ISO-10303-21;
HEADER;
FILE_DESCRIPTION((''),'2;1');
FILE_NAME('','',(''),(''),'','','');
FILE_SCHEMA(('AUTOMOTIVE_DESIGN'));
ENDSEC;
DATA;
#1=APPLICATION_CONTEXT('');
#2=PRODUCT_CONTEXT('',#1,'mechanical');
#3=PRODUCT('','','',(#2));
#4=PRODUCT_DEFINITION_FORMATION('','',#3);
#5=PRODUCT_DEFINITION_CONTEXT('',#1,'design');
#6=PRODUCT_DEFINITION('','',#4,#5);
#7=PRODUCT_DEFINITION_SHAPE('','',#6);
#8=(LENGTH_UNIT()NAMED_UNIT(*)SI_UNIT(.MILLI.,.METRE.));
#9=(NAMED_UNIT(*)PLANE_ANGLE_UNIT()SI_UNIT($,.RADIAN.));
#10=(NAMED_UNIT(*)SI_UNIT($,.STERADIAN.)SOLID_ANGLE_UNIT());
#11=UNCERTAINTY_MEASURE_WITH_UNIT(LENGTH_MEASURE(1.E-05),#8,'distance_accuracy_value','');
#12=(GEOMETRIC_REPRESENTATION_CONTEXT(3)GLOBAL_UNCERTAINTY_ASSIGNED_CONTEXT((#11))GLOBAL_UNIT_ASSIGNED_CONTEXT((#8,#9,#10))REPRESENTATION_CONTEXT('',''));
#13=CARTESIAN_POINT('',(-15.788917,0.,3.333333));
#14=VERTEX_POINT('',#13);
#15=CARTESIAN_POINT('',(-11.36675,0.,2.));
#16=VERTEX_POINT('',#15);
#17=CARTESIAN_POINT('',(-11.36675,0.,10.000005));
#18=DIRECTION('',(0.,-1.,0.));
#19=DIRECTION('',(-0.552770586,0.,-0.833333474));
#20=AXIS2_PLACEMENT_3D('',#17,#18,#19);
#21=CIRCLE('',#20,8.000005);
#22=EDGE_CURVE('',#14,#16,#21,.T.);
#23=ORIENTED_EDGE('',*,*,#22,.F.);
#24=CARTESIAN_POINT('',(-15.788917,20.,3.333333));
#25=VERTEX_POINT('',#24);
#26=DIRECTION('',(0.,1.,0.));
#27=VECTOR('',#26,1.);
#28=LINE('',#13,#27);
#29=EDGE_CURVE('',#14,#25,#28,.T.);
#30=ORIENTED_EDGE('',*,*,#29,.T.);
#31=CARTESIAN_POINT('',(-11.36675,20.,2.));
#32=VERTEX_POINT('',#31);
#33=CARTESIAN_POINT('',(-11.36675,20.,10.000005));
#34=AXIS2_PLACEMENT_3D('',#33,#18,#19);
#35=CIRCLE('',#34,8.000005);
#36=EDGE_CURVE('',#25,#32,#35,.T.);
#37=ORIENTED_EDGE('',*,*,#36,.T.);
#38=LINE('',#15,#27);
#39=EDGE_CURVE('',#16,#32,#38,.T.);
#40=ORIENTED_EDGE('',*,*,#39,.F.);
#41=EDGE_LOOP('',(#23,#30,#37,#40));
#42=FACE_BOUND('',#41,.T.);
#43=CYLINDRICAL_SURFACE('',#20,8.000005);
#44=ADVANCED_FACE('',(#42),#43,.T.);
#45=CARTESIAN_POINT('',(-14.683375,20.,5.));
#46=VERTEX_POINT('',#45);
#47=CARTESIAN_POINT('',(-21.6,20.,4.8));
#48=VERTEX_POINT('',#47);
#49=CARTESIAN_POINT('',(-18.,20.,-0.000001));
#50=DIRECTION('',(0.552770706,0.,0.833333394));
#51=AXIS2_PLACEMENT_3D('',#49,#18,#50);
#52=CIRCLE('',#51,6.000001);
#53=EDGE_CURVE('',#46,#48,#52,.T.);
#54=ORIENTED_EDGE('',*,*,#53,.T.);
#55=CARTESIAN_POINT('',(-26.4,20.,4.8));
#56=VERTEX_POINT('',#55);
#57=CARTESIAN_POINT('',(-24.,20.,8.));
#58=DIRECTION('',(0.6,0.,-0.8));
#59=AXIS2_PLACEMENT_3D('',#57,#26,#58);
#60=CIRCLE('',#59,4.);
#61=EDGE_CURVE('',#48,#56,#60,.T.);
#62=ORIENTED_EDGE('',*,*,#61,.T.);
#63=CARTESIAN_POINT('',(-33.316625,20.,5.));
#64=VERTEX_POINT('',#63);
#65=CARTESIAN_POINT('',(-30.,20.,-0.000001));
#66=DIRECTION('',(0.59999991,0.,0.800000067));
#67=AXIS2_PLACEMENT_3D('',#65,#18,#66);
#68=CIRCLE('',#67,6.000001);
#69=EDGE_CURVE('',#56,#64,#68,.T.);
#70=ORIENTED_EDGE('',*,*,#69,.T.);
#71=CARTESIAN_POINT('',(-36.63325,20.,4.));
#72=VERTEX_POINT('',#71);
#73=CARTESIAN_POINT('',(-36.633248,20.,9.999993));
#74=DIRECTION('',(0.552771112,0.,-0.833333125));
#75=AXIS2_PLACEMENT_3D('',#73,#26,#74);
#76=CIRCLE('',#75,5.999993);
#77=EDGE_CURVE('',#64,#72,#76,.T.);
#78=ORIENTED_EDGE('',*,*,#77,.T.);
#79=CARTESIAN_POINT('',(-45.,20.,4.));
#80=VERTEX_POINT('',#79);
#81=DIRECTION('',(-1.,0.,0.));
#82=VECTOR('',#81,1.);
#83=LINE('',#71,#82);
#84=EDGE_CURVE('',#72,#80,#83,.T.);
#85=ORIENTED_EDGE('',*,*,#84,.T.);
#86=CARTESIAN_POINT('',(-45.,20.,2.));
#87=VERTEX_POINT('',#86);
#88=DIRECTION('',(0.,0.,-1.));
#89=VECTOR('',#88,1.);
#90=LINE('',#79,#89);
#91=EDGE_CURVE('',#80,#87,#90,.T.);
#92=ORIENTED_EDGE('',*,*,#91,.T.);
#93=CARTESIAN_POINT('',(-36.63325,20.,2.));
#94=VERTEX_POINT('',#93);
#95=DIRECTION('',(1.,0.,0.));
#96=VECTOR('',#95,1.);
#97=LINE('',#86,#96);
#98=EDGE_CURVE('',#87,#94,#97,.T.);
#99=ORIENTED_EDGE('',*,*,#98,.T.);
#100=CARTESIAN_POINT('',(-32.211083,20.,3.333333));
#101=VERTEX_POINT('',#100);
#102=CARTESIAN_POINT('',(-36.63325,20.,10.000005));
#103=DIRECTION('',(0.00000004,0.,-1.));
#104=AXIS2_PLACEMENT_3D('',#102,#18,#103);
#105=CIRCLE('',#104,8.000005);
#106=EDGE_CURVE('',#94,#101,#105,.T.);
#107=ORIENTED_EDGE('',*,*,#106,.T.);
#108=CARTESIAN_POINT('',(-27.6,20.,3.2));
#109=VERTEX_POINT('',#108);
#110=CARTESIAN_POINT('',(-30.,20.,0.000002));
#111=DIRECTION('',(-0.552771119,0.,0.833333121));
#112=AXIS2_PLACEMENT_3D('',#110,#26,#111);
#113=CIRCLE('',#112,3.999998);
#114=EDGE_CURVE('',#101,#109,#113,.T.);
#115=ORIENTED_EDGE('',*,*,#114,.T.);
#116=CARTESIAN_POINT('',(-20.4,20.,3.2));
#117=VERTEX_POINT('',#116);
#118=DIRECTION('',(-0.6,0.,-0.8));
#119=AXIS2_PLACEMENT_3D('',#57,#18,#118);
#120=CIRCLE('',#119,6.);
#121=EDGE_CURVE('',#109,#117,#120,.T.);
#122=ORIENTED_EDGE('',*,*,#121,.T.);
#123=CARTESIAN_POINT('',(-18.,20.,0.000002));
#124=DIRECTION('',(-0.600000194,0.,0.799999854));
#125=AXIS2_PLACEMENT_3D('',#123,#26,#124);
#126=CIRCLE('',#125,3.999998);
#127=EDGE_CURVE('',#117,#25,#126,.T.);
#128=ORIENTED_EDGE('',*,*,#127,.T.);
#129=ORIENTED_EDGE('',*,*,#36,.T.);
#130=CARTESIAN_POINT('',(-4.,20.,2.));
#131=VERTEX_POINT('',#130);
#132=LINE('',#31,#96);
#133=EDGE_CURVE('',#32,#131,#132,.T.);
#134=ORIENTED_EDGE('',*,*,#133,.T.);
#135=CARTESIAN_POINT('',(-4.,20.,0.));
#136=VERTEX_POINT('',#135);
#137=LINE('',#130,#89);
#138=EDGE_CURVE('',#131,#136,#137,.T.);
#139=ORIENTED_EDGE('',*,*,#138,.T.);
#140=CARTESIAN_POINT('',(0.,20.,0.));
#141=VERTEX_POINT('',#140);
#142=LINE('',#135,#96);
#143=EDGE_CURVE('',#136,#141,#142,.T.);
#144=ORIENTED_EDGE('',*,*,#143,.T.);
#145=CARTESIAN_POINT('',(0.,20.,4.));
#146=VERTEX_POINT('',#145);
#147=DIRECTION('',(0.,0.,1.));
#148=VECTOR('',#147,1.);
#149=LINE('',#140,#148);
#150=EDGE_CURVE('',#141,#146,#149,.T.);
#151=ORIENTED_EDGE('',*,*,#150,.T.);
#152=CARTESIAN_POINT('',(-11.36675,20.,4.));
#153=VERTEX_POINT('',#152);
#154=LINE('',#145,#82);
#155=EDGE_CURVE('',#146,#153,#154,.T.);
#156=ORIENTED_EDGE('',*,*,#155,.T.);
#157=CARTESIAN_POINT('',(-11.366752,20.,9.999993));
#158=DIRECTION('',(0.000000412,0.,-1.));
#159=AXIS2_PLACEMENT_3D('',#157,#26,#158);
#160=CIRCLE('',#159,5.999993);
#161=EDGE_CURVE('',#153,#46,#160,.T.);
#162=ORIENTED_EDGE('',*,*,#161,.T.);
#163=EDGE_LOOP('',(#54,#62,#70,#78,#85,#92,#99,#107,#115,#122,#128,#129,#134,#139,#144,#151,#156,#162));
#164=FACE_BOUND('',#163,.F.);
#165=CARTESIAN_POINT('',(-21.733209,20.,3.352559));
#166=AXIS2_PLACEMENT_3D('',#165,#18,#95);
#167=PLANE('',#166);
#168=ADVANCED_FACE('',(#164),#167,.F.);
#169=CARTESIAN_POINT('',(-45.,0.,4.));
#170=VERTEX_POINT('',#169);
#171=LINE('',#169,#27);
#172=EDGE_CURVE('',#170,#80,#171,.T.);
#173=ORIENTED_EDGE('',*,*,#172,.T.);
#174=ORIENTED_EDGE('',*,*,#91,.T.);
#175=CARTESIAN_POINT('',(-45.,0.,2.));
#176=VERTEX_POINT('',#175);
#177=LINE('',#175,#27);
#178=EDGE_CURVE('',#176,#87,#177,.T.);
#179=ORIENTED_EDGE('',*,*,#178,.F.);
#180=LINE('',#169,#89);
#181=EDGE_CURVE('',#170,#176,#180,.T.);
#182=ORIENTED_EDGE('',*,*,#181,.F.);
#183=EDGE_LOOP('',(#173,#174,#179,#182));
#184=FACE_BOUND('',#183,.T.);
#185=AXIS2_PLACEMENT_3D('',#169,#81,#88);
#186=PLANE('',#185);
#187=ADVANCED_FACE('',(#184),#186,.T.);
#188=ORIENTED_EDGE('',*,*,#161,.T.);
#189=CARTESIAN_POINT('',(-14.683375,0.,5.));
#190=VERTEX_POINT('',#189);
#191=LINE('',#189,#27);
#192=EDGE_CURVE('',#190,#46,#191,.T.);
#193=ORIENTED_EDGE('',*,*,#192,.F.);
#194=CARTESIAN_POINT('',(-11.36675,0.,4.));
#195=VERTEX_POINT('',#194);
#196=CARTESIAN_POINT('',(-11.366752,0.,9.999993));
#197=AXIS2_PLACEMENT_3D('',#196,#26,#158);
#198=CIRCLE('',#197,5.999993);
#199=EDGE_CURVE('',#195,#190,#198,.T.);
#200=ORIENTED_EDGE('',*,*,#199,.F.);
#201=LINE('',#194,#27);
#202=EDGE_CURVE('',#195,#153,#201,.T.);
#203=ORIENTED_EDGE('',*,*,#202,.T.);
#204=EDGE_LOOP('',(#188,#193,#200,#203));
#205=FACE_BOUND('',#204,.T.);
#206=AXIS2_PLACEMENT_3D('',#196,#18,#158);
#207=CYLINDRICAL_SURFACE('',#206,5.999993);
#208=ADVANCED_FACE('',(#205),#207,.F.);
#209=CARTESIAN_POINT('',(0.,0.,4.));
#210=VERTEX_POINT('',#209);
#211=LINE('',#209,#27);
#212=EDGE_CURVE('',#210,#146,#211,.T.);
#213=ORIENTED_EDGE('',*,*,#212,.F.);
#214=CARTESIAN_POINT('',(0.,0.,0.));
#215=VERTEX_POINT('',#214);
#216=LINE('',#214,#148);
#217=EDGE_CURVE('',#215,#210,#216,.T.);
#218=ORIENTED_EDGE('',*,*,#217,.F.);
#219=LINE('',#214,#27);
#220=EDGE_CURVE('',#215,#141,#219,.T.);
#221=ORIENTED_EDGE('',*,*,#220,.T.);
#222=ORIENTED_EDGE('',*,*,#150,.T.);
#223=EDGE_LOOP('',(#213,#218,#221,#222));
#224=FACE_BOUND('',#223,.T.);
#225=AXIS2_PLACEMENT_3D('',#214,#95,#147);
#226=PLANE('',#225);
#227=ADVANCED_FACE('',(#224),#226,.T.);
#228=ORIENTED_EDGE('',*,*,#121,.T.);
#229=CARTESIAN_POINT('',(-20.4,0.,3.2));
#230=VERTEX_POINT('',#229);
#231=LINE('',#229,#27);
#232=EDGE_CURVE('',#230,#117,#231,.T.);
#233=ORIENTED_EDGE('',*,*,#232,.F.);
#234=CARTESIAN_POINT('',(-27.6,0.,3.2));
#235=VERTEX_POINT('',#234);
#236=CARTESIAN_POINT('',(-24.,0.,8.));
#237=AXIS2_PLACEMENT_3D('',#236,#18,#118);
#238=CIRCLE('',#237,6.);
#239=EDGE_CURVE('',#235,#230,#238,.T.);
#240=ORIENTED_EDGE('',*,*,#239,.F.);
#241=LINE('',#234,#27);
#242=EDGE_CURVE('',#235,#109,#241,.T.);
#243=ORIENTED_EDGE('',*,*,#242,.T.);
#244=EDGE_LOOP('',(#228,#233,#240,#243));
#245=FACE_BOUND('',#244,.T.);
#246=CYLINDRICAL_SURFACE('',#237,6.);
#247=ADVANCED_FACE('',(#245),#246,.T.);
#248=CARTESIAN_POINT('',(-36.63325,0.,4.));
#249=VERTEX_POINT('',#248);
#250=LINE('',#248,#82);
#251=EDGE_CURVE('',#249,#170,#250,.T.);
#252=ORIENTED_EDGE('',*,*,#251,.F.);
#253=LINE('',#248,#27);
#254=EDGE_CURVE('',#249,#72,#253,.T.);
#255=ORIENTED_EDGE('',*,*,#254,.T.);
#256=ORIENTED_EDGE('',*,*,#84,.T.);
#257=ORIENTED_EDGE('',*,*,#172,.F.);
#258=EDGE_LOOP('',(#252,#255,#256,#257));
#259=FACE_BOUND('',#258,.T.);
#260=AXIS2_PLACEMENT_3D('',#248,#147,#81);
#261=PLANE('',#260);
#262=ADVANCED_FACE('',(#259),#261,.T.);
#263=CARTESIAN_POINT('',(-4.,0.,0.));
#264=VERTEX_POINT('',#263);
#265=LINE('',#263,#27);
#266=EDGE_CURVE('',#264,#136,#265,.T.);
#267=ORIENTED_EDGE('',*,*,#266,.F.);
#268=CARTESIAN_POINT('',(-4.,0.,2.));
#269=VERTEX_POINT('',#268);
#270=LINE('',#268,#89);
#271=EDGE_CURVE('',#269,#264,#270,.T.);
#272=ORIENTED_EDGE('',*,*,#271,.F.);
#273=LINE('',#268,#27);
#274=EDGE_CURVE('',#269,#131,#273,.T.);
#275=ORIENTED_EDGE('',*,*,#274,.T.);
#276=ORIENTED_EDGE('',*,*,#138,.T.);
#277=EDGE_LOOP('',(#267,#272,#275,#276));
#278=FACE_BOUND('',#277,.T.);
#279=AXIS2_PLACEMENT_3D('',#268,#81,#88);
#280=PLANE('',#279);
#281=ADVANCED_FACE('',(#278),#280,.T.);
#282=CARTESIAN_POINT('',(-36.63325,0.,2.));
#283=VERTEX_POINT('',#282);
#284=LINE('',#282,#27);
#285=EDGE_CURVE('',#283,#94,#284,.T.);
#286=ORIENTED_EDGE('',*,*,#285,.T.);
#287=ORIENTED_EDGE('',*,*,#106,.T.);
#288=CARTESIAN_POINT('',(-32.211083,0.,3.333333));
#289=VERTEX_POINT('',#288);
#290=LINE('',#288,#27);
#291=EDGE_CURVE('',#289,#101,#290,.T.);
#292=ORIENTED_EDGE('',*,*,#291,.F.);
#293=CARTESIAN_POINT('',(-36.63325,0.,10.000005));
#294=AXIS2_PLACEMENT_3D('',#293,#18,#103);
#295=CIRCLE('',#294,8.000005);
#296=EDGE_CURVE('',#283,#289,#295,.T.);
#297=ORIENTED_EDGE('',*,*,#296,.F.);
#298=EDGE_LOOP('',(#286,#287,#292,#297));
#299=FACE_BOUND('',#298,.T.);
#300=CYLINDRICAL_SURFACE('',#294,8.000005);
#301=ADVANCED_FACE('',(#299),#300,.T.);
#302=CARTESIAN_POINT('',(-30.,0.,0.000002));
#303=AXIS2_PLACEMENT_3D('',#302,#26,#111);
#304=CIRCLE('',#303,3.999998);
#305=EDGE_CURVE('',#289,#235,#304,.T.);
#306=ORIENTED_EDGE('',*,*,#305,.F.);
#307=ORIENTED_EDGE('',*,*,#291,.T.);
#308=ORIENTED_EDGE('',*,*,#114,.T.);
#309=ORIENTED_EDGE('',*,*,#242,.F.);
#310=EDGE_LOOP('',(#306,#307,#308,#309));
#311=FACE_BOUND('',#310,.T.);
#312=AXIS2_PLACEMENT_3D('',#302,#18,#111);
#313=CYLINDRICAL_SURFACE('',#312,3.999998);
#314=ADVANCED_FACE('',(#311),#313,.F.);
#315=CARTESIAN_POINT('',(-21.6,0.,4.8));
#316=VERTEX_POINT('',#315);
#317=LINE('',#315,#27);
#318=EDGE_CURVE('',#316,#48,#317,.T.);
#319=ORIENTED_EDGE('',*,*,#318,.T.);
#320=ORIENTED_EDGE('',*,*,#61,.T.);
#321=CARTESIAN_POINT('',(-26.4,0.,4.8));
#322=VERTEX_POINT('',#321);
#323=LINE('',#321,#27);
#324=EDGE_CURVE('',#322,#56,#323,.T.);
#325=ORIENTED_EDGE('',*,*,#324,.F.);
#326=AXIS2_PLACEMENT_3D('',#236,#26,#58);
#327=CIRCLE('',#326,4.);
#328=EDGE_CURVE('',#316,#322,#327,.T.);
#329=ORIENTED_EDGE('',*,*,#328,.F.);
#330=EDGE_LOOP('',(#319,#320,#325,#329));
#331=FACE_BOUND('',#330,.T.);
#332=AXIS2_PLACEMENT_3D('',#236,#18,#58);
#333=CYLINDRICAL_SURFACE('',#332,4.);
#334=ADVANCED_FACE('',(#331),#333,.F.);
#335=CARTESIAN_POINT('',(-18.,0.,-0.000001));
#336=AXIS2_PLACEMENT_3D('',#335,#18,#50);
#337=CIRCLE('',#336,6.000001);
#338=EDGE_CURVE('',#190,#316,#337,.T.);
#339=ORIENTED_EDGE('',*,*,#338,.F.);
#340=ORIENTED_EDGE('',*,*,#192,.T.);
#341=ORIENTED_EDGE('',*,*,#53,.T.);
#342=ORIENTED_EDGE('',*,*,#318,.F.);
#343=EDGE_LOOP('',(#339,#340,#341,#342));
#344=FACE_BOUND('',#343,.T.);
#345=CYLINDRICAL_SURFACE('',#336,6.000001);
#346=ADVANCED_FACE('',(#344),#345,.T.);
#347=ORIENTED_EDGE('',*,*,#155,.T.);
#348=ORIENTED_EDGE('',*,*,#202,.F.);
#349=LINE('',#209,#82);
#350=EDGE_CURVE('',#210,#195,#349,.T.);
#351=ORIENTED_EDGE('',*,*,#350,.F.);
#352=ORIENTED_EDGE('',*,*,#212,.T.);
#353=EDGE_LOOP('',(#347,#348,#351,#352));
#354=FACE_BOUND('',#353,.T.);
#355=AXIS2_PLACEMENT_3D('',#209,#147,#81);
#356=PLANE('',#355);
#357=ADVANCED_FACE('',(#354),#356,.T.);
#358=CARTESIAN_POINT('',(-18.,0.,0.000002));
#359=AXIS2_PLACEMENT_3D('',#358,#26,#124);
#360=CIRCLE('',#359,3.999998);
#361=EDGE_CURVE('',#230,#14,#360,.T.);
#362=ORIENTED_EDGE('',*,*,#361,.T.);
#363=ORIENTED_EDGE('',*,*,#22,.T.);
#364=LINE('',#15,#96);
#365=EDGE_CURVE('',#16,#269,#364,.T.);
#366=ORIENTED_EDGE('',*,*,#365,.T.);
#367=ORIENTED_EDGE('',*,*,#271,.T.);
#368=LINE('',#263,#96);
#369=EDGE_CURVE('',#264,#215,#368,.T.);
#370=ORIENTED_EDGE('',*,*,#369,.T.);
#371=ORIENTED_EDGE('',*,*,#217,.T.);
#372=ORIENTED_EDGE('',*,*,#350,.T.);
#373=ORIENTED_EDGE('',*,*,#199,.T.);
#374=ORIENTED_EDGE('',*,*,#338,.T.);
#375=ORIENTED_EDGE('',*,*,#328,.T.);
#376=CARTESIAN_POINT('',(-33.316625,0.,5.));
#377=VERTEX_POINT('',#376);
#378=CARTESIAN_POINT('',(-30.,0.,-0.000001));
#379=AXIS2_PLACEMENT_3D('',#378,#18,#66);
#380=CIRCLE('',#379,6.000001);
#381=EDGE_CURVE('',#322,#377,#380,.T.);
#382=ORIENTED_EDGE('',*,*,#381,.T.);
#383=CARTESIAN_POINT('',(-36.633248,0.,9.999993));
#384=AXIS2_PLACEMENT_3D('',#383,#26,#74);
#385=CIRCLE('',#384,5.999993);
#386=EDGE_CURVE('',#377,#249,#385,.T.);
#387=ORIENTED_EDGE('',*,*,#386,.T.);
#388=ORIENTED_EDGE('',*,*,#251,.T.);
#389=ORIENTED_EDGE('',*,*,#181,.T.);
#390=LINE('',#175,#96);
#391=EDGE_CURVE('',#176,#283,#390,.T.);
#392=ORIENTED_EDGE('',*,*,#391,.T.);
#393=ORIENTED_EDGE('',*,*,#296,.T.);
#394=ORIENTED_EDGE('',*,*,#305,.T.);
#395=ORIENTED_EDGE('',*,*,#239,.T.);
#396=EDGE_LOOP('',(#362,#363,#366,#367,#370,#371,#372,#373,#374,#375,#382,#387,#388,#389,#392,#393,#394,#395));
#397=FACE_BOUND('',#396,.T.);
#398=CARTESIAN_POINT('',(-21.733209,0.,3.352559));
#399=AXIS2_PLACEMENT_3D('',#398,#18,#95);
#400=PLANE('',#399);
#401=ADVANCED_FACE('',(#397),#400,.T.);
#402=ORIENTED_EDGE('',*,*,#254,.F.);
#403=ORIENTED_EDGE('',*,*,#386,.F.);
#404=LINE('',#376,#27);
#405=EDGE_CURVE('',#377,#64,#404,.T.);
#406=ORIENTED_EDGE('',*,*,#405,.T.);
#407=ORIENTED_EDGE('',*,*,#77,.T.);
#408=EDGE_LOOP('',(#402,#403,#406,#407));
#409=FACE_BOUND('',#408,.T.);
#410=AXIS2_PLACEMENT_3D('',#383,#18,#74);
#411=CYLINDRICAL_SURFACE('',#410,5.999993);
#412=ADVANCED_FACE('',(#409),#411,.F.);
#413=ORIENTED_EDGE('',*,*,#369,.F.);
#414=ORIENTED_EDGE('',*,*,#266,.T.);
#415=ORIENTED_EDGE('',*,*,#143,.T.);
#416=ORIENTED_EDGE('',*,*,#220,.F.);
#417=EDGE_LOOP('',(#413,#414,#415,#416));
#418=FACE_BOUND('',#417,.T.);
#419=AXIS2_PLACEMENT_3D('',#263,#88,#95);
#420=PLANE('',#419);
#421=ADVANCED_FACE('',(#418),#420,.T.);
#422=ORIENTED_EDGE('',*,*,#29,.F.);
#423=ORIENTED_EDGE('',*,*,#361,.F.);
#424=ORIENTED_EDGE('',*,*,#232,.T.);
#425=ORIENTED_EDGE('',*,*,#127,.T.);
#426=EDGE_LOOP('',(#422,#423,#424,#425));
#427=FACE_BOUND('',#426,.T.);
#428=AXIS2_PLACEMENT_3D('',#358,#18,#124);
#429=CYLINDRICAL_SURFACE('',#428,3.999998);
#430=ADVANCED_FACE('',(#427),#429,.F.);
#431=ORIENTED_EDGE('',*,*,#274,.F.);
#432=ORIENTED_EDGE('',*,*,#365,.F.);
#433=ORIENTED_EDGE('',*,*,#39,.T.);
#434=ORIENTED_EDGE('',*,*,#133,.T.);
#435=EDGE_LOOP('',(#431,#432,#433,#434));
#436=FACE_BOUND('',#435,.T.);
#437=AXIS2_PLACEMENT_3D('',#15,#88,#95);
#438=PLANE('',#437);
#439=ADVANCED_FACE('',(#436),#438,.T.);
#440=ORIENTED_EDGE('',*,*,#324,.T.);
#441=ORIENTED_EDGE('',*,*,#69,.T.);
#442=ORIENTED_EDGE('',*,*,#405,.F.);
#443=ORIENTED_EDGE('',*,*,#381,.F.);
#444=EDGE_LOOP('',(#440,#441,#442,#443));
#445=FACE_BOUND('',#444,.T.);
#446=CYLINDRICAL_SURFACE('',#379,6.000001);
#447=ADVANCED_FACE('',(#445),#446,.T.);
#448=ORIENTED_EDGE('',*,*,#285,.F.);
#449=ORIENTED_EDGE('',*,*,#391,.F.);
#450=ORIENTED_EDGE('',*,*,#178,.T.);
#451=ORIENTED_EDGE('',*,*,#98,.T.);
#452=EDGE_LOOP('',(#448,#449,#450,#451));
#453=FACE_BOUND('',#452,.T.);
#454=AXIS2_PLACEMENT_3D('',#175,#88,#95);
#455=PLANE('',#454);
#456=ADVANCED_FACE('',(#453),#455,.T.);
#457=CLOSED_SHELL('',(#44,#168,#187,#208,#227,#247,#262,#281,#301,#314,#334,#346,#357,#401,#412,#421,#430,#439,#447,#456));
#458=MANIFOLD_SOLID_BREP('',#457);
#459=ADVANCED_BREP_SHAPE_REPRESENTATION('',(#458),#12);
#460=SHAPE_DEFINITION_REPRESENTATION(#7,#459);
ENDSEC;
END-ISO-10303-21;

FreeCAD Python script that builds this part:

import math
import FreeCAD as App
import Part
import Sketcher
Q = App.Units.Quantity

doc = App.newDocument("Part")
body = doc.addObject("PartDesign::Body", "Body")

# Sketch on XZ plane
sketch1 = body.newObject("Sketcher::SketchObject", "Sketch")
sketch1.AttachmentSupport = (doc.getObject("XZ_Plane"), [""])
sketch1.MapMode = "FlatFace"
sketch1.addGeometry([
    Part.ArcOfCircle(Part.Circle(App.Vector(-24, 8, 0), App.Vector(0, 0, 1), 4), math.radians(-127), math.radians(-53)),  # 0
    Part.ArcOfCircle(Part.Circle(App.Vector(-30, 0, 0), App.Vector(0, 0, 1), 6), math.radians(53), math.radians(124)),  # 1
    Part.ArcOfCircle(Part.Circle(App.Vector(-36.6, 10, 0), App.Vector(0, 0, 1), 6), math.radians(-90), math.radians(-56)),  # 2
    Part.LineSegment(App.Vector(-36.6, 4, 0), App.Vector(-45, 4, 0)),  # 3
    Part.LineSegment(App.Vector(-45, 4, 0), App.Vector(-45, 2, 0)),  # 4
    Part.LineSegment(App.Vector(-45, 2, 0), App.Vector(-36.6, 2, 0)),  # 5
    Part.ArcOfCircle(Part.Circle(App.Vector(-36.6, 10, 0), App.Vector(0, 0, 1), 8), math.radians(-90), math.radians(-56)),  # 6
    Part.ArcOfCircle(Part.Circle(App.Vector(-30, 0, 0), App.Vector(0, 0, 1), 4), math.radians(53), math.radians(124)),  # 7
    Part.ArcOfCircle(Part.Circle(App.Vector(-24, 8, 0), App.Vector(0, 0, 1), 6), math.radians(-127), math.radians(-53)),  # 8
    Part.ArcOfCircle(Part.Circle(App.Vector(-18, 0, 0), App.Vector(0, 0, 1), 4), math.radians(56), math.radians(127)),  # 9
    Part.ArcOfCircle(Part.Circle(App.Vector(-11.4, 10, 0), App.Vector(0, 0, 1), 8), math.radians(-124), math.radians(-90)),  # 10
    Part.LineSegment(App.Vector(-11.4, 2, 0), App.Vector(-4, 2, 0)),  # 11
    Part.LineSegment(App.Vector(-4, 2, 0), App.Vector(-4, 0, 0)),  # 12
    Part.LineSegment(App.Vector(-4, 0, 0), App.Vector(0, 0, 0)),  # 13
    Part.LineSegment(App.Vector(0, 0, 0), App.Vector(0, 4, 0)),  # 14
    Part.LineSegment(App.Vector(0, 4, 0), App.Vector(-11.4, 4, 0)),  # 15
    Part.ArcOfCircle(Part.Circle(App.Vector(-11.4, 10, 0), App.Vector(0, 0, 1), 6), math.radians(-124), math.radians(-90)),  # 16
    Part.ArcOfCircle(Part.Circle(App.Vector(-18, 0, 0), App.Vector(0, 0, 1), 6), math.radians(56), math.radians(127)),  # 17
], False)
sketch1.addConstraint([
    Sketcher.Constraint("Tangent", 0, 1, 1, 1),
    Sketcher.Constraint("Tangent", 1, 2, 2, 2),
    Sketcher.Constraint("Tangent", 2, 1, 3, 1),
    Sketcher.Constraint("Coincident", 3, 2, 4, 1),
    Sketcher.Constraint("Coincident", 4, 2, 5, 1),
    Sketcher.Constraint("Tangent", 5, 2, 6, 1),
    Sketcher.Constraint("Tangent", 6, 2, 7, 2),
    Sketcher.Constraint("Tangent", 7, 1, 8, 1),
    Sketcher.Constraint("Tangent", 8, 2, 9, 2),
    Sketcher.Constraint("Tangent", 9, 1, 10, 1),
    Sketcher.Constraint("Tangent", 10, 2, 11, 1),
    Sketcher.Constraint("Coincident", 11, 2, 12, 1),
    Sketcher.Constraint("Coincident", 12, 2, 13, 1),
    Sketcher.Constraint("Coincident", 13, 2, 14, 1),
    Sketcher.Constraint("Coincident", 14, 2, 15, 1),
    Sketcher.Constraint("Tangent", 15, 2, 16, 2),
    Sketcher.Constraint("Tangent", 16, 1, 17, 1),
    Sketcher.Constraint("Tangent", 17, 2, 0, 2),
    Sketcher.Constraint("Horizontal", 3),
    Sketcher.Constraint("Vertical", 4),
    Sketcher.Constraint("Horizontal", 5),
    Sketcher.Constraint("Horizontal", 11),
    Sketcher.Constraint("Vertical", 12),
    Sketcher.Constraint("Horizontal", 13),
    Sketcher.Constraint("Vertical", 14),
    Sketcher.Constraint("Horizontal", 15),
    Sketcher.Constraint("Coincident", 13, 2, -1, 1),
    Sketcher.Constraint("Coincident", 7, 3, 1, 3),
    Sketcher.Constraint("Coincident", 8, 3, 0, 3),
    Sketcher.Constraint("Coincident", 17, 3, 9, 3),
    Sketcher.Constraint("Equal", 0, 7),
    Sketcher.Constraint("Equal", 7, 9),
    Sketcher.Constraint("Equal", 6, 10),
    Sketcher.Constraint("Equal", 2, 16),
    Sketcher.Constraint("PointOnObject", 1, 3, -1),
    Sketcher.Constraint("PointOnObject", 17, 3, -1),
    Sketcher.Constraint("Horizontal", 6, 3, 10, 3),
    Sketcher.Constraint("Horizontal", 2, 3, 16, 3),
    Sketcher.Constraint("Vertical", 6, 3, 2, 1),
    Sketcher.Constraint("Equal", 4, 12),
    Sketcher.Constraint("Equal", 13, 14),
    Sketcher.Constraint("Radius", 0, Q("4 mm")),
    Sketcher.Constraint("Radius", 1, Q("6.000001 mm")),
    Sketcher.Constraint("DistanceX", 13, 1, 13, 2, Q("4 mm")),
    Sketcher.Constraint("DistanceX", 0, 3, -1, 1, Q("24 mm")),
    Sketcher.Constraint("DistanceY", -1, 1, 0, 3, Q("8 mm")),
    Sketcher.Constraint("DistanceY", -1, 1, 1, 2, Q("5 mm")),
    Sketcher.Constraint("DistanceX", 3, 2, -1, 1, Q("45 mm")),
])
pad1 = body.newObject("PartDesign::Pad", "Pad")
pad1.Profile = sketch1
pad1.Length = 20
pad1.Reversed = True

doc.recompute()
